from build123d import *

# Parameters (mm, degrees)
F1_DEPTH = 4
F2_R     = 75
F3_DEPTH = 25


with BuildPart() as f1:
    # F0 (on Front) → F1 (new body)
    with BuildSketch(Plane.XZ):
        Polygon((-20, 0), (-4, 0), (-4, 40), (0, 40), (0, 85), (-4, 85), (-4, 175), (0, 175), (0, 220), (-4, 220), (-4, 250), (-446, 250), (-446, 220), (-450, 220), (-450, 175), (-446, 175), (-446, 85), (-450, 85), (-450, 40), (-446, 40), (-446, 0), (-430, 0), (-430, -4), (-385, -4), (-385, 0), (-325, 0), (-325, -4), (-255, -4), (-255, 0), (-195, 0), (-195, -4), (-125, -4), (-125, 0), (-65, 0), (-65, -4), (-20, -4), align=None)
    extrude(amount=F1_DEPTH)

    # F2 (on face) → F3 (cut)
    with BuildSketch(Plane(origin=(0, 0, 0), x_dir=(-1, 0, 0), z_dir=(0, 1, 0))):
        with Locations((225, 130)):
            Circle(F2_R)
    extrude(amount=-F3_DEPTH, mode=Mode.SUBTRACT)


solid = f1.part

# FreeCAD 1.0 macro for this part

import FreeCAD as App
import Part
import Sketcher
Q = App.Units.Quantity

doc = App.newDocument("Part")
params = doc.addObject("Spreadsheet::Sheet", "Params")
for row, (alias, value) in enumerate([
    ("sketch1_width", "16 mm"),
    ("sketch1_width2", "4 mm"),
    ("sketch1_width3", "442 mm"),
    ("sketch1_width4", "45 mm"),
    ("sketch1_width5", "60 mm"),
    ("pad1_length", "4 mm"),
    ("sketch2_diameter", "150 mm"),
    ("pocket1_length", "25 mm"),
], start=1):
    params.set(f"A{row}", alias)
    params.set(f"B{row}", "=" + value)
    params.setAlias(f"B{row}", alias)

body = doc.addObject("PartDesign::Body", "Body")

# Sketch on XZ plane
sketch1 = body.newObject("Sketcher::SketchObject", "Sketch")
sketch1.AttachmentSupport = (doc.getObject("XZ_Plane"), [""])
sketch1.MapMode = "FlatFace"
sketch1.addGeometry([
    Part.LineSegment(App.Vector(-20, 0, 0), App.Vector(-4, 0, 0)),  # 0
    Part.LineSegment(App.Vector(-4, 0, 0), App.Vector(-4, 40, 0)),  # 1
    Part.LineSegment(App.Vector(-4, 40, 0), App.Vector(0, 40, 0)),  # 2
    Part.LineSegment(App.Vector(0, 40, 0), App.Vector(0, 85, 0)),  # 3
    Part.LineSegment(App.Vector(0, 85, 0), App.Vector(-4, 85, 0)),  # 4
    Part.LineSegment(App.Vector(-4, 85, 0), App.Vector(-4, 175, 0)),  # 5
    Part.LineSegment(App.Vector(-4, 175, 0), App.Vector(0, 175, 0)),  # 6
    Part.LineSegment(App.Vector(0, 175, 0), App.Vector(0, 220, 0)),  # 7
    Part.LineSegment(App.Vector(0, 220, 0), App.Vector(-4, 220, 0)),  # 8
    Part.LineSegment(App.Vector(-4, 220, 0), App.Vector(-4, 250, 0)),  # 9
    Part.LineSegment(App.Vector(-4, 250, 0), App.Vector(-446, 250, 0)),  # 10
    Part.LineSegment(App.Vector(-446, 250, 0), App.Vector(-446, 220, 0)),  # 11
    Part.LineSegment(App.Vector(-446, 220, 0), App.Vector(-450, 220, 0)),  # 12
    Part.LineSegment(App.Vector(-450, 220, 0), App.Vector(-450, 175, 0)),  # 13
    Part.LineSegment(App.Vector(-450, 175, 0), App.Vector(-446, 175, 0)),  # 14
    Part.LineSegment(App.Vector(-446, 175, 0), App.Vector(-446, 85, 0)),  # 15
    Part.LineSegment(App.Vector(-446, 85, 0), App.Vector(-450, 85, 0)),  # 16
    Part.LineSegment(App.Vector(-450, 85, 0), App.Vector(-450, 40, 0)),  # 17
    Part.LineSegment(App.Vector(-450, 40, 0), App.Vector(-446, 40, 0)),  # 18
    Part.LineSegment(App.Vector(-446, 40, 0), App.Vector(-446, 0, 0)),  # 19
    Part.LineSegment(App.Vector(-446, 0, 0), App.Vector(-430, 0, 0)),  # 20
    Part.LineSegment(App.Vector(-430, 0, 0), App.Vector(-430, -4, 0)),  # 21
    Part.LineSegment(App.Vector(-430, -4, 0), App.Vector(-385, -4, 0)),  # 22
    Part.LineSegment(App.Vector(-385, -4, 0), App.Vector(-385, 0, 0)),  # 23
    Part.LineSegment(App.Vector(-385, 0, 0), App.Vector(-325, 0, 0)),  # 24
    Part.LineSegment(App.Vector(-325, 0, 0), App.Vector(-325, -4, 0)),  # 25
    Part.LineSegment(App.Vector(-325, -4, 0), App.Vector(-255, -4, 0)),  # 26
    Part.LineSegment(App.Vector(-255, -4, 0), App.Vector(-255, 0, 0)),  # 27
    Part.LineSegment(App.Vector(-255, 0, 0), App.Vector(-195, 0, 0)),  # 28
    Part.LineSegment(App.Vector(-195, 0, 0), App.Vector(-195, -4, 0)),  # 29
    Part.LineSegment(App.Vector(-195, -4, 0), App.Vector(-125, -4, 0)),  # 30
    Part.LineSegment(App.Vector(-125, -4, 0), App.Vector(-125, 0, 0)),  # 31
    Part.LineSegment(App.Vector(-125, 0, 0), App.Vector(-65, 0, 0)),  # 32
    Part.LineSegment(App.Vector(-65, 0, 0), App.Vector(-65, -4, 0)),  # 33
    Part.LineSegment(App.Vector(-65, -4, 0), App.Vector(-20, -4, 0)),  # 34
    Part.LineSegment(App.Vector(-20, -4, 0), App.Vector(-20, 0, 0)),  # 35
], False)
sketch1.addConstraint([
    Sketcher.Constraint("Coincident", 0, 2, 1, 1),
    Sketcher.Constraint("Coincident", 1, 2, 2, 1),
    Sketcher.Constraint("Coincident", 2, 2, 3, 1),
    Sketcher.Constraint("Coincident", 3, 2, 4, 1),
    Sketcher.Constraint("Coincident", 4, 2, 5, 1),
    Sketcher.Constraint("Coincident", 5, 2, 6, 1),
    Sketcher.Constraint("Coincident", 6, 2, 7, 1),
    Sketcher.Constraint("Coincident", 7, 2, 8, 1),
    Sketcher.Constraint("Coincident", 8, 2, 9, 1),
    Sketcher.Constraint("Coincident", 9, 2, 10, 1),
    Sketcher.Constraint("Coincident", 10, 2, 11, 1),
    Sketcher.Constraint("Coincident", 11, 2, 12, 1),
    Sketcher.Constraint("Coincident", 12, 2, 13, 1),
    Sketcher.Constraint("Coincident", 13, 2, 14, 1),
    Sketcher.Constraint("Coincident", 14, 2, 15, 1),
    Sketcher.Constraint("Coincident", 15, 2, 16, 1),
    Sketcher.Constraint("Coincident", 16, 2, 17, 1),
    Sketcher.Constraint("Coincident", 17, 2, 18, 1),
    Sketcher.Constraint("Coincident", 18, 2, 19, 1),
    Sketcher.Constraint("Coincident", 19, 2, 20, 1),
    Sketcher.Constraint("Coincident", 20, 2, 21, 1),
    Sketcher.Constraint("Coincident", 21, 2, 22, 1),
    Sketcher.Constraint("Coincident", 22, 2, 23, 1),
    Sketcher.Constraint("Coincident", 23, 2, 24, 1),
    Sketcher.Constraint("Coincident", 24, 2, 25, 1),
    Sketcher.Constraint("Coincident", 25, 2, 26, 1),
    Sketcher.Constraint("Coincident", 26, 2, 27, 1),
    Sketcher.Constraint("Coincident", 27, 2, 28, 1),
    Sketcher.Constraint("Coincident", 28, 2, 29, 1),
    Sketcher.Constraint("Coincident", 29, 2, 30, 1),
    Sketcher.Constraint("Coincident", 30, 2, 31, 1),
    Sketcher.Constraint("Coincident", 31, 2, 32, 1),
    Sketcher.Constraint("Coincident", 32, 2, 33, 1),
    Sketcher.Constraint("Coincident", 33, 2, 34, 1),
    Sketcher.Constraint("Coincident", 34, 2, 35, 1),
    Sketcher.Constraint("Coincident", 35, 2, 0, 1),
    Sketcher.Constraint("Horizontal", 0),
    Sketcher.Constraint("Vertical", 1),
    Sketcher.Constraint("Horizontal", 2),
    Sketcher.Constraint("Vertical", 3),
    Sketcher.Constraint("Horizontal", 4),
    Sketcher.Constraint("Vertical", 5),
    Sketcher.Constraint("Horizontal", 6),
    Sketcher.Constraint("Vertical", 7),
    Sketcher.Constraint("Horizontal", 8),
    Sketcher.Constraint("Vertical", 9),
    Sketcher.Constraint("Horizontal", 10),
    Sketcher.Constraint("Vertical", 11),
    Sketcher.Constraint("Horizontal", 12),
    Sketcher.Constraint("Vertical", 13),
    Sketcher.Constraint("Horizontal", 14),
    Sketcher.Constraint("Vertical", 15),
    Sketcher.Constraint("Horizontal", 16),
    Sketcher.Constraint("Vertical", 17),
    Sketcher.Constraint("Horizontal", 18),
    Sketcher.Constraint("Vertical", 19),
    Sketcher.Constraint("Horizontal", 20),
    Sketcher.Constraint("Vertical", 21),
    Sketcher.Constraint("Horizontal", 22),
    Sketcher.Constraint("Vertical", 23),
    Sketcher.Constraint("Horizontal", 24),
    Sketcher.Constraint("Vertical", 25),
    Sketcher.Constraint("Horizontal", 26),
    Sketcher.Constraint("Vertical", 27),
    Sketcher.Constraint("Horizontal", 28),
    Sketcher.Constraint("Vertical", 29),
    Sketcher.Constraint("Horizontal", 30),
    Sketcher.Constraint("Vertical", 31),
    Sketcher.Constraint("Horizontal", 32),
    Sketcher.Constraint("Vertical", 33),
    Sketcher.Constraint("Horizontal", 34),
    Sketcher.Constraint("Vertical", 35),
    Sketcher.Constraint("PointOnObject", 0, 2, -1),
    Sketcher.Constraint("PointOnObject", 2, 2, -2),
    Sketcher.Constraint("PointOnObject", 6, 2, -2),
    Sketcher.Constraint("PointOnObject", 19, 2, -1),
    Sketcher.Constraint("PointOnObject", 23, 2, -1),
    Sketcher.Constraint("PointOnObject", 27, 2, -1),
    Sketcher.Constraint("PointOnObject", 31, 2, -1),
    Sketcher.Constraint("Horizontal", 8, 2, 11, 2),
    Sketcher.Constraint("Horizontal", 6, 2, 13, 2),
    Sketcher.Constraint("Horizontal", 4, 2, 15, 2),
    Sketcher.Constraint("Horizontal", 2, 2, 17, 2),
    Sketcher.Constraint("Horizontal", 22, 2, 25, 2),
    Sketcher.Constraint("Horizontal", 26, 2, 29, 2),
    Sketcher.Constraint("Horizontal", 30, 2, 33, 2),
    Sketcher.Constraint("Vertical", 1, 2, 4, 2),
    Sketcher.Constraint("Vertical", 5, 2, 8, 2),
    Sketcher.Constraint("Vertical", 11, 2, 14, 2),
    Sketcher.Constraint("Vertical", 13, 2, 16, 2),
    Sketcher.Constraint("Vertical", 15, 2, 18, 2),
    Sketcher.Constraint("Equal", 8, 12),
    Sketcher.Constraint("Equal", 0, 20),
    Sketcher.Constraint("Equal", 24, 28),
    Sketcher.Constraint("Equal", 26, 30),
    Sketcher.Constraint("Equal", 28, 32),
    Sketcher.Constraint("Equal", 22, 34),
    Sketcher.Constraint("Equal", 34, 3),
    Sketcher.Constraint("Equal", 3, 7),
    Sketcher.Constraint("Equal", 18, 21),
    Sketcher.Constraint("DistanceX", 0, 1, 0, 2, Q("16 mm")),
    Sketcher.Constraint("DistanceX", 2, 1, 2, 2, Q("4 mm")),
    Sketcher.Constraint("DistanceX", 10, 2, 10, 1, Q("442 mm")),
    Sketcher.Constraint("DistanceX", 22, 1, 22, 2, Q("45 mm")),
    Sketcher.Constraint("DistanceX", 24, 1, 24, 2, Q("60 mm")),
    Sketcher.Constraint("DistanceY", 1, 1, 1, 2, Q("40 mm")),
    Sketcher.Constraint("DistanceY", 5, 1, 5, 2, Q("90 mm")),
    Sketcher.Constraint("DistanceY", 9, 1, 9, 2, Q("30 mm")),
])
sketch1.setExpression("Constraints[100]", "Params.sketch1_width")
sketch1.setExpression("Constraints[101]", "Params.sketch1_width2")
sketch1.setExpression("Constraints[102]", "Params.sketch1_width3")
sketch1.setExpression("Constraints[103]", "Params.sketch1_width4")
sketch1.setExpression("Constraints[104]", "Params.sketch1_width5")
pad1 = body.newObject("PartDesign::Pad", "Pad")
pad1.Profile = sketch1
pad1.setExpression("Length", "Params.pad1_length")

# Sketch on XZ plane
sketch2 = body.newObject("Sketcher::SketchObject", "Sketch001")
sketch2.AttachmentSupport = (doc.getObject("XZ_Plane"), [""])
sketch2.MapMode = "FlatFace"
sketch2.addGeometry(Part.Circle(App.Vector(-225, 130, 0), App.Vector(0, 0, 1), 75), False)
sketch2.addConstraint([
    Sketcher.Constraint("Diameter", 0, Q("150 mm")),
    Sketcher.Constraint("DistanceX", 0, 3, -1, 1, Q("225 mm")),
    Sketcher.Constraint("DistanceY", -1, 1, 0, 3, Q("130 mm")),
])
sketch2.setExpression("Constraints[0]", "Params.sketch2_diameter")
pocket1 = body.newObject("PartDesign::Pocket", "Pocket")
pocket1.Profile = sketch2
pocket1.setExpression("Length", "Params.pocket1_length")
pocket1.Reversed = True

doc.recompute()
